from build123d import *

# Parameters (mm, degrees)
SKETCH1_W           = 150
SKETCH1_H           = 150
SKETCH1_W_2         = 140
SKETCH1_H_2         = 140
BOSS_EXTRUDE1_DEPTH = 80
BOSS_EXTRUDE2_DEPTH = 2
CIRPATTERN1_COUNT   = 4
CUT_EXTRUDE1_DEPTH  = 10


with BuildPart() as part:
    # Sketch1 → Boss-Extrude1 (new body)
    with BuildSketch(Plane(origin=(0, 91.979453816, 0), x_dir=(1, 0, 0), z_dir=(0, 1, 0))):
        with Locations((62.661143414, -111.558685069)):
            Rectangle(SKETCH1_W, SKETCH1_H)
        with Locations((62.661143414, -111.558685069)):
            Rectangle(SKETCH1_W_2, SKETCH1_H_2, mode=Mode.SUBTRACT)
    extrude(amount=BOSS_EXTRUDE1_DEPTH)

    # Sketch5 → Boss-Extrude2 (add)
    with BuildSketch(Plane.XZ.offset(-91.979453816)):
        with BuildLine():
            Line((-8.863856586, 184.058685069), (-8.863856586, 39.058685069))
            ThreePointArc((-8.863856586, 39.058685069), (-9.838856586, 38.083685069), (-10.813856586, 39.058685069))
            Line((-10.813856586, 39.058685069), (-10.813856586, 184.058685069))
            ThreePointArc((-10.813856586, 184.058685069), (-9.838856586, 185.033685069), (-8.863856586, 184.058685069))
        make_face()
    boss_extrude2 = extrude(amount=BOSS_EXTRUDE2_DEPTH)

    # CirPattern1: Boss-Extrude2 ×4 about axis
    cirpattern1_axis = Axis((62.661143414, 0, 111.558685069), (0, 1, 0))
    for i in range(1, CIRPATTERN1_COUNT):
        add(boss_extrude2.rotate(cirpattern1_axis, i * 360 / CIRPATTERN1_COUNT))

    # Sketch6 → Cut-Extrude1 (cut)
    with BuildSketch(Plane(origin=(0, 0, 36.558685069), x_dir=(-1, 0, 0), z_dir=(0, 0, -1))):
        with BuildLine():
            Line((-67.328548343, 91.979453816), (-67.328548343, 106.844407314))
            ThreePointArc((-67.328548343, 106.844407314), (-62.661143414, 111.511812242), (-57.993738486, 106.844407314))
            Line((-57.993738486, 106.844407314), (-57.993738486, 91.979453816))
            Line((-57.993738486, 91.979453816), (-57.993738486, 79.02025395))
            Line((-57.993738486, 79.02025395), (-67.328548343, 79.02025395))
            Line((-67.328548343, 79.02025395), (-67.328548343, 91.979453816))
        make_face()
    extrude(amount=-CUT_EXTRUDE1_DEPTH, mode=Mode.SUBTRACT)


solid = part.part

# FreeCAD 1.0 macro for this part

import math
import FreeCAD as App
import Part
import Sketcher

V = App.Vector


def add_polygon(sketch, points):
    """Adds a closed chain of lines whose ends are joined by coincident constraints."""
    first, n = sketch.GeometryCount, len(points)
    for a, b in zip(points, points[1:] + points[:1]):
        sketch.addGeometry(Part.LineSegment(App.Vector(*a, 0), App.Vector(*b, 0)), False)
    for i in range(n):
        sketch.addConstraint(Sketcher.Constraint("Coincident", first + i, 2, first + (i + 1) % n, 1))

doc = App.newDocument("Part")
body = doc.addObject("PartDesign::Body", "Body")

sketch1 = doc.addObject("Sketcher::SketchObject", "Sketch")
body.addObject(sketch1)
sketch1.AttachmentSupport = (doc.XZ_Plane, [""])
sketch1.MapMode = "FlatFace"
sketch1.AttachmentOffset = App.Placement(V(0, 0, -91.979454), App.Rotation())
add_polygon(sketch1, [(-12, 37), (-12, 187), (138, 187), (138, 37)])
add_polygon(sketch1, [(133, 182), (-7, 182), (-7, 42), (133, 42)])
sketch1.addConstraint([
    Sketcher.Constraint("Vertical", 0),
    Sketcher.Constraint("Horizontal", 1),
    Sketcher.Constraint("Vertical", 2),
    Sketcher.Constraint("Horizontal", 3),
    Sketcher.Constraint("Horizontal", 4),
    Sketcher.Constraint("Vertical", 5),
    Sketcher.Constraint("Horizontal", 6),
    Sketcher.Constraint("Vertical", 7),
    Sketcher.Constraint("Equal", 3, 0),
    Sketcher.Constraint("Equal", 6, 5),
    Sketcher.Constraint("DistanceX", 1, 1, 1, 2, 150.0),
    Sketcher.Constraint("DistanceX", 4, 2, 4, 1, 140.0),
    Sketcher.Constraint("DistanceX", 0, 2, 4, 2, 5.0),
    Sketcher.Constraint("DistanceY", 4, 2, 0, 2, 5.0),
    Sketcher.Constraint("DistanceX", 0, 2, -1, 1, 12.338857),
    Sketcher.Constraint("DistanceY", -1, 1, 0, 2, 186.558685),
])
pad1 = doc.addObject("PartDesign::Pad", "Pad")
body.addObject(pad1)
pad1.Profile = sketch1
pad1.Length = 80
pad1.Reversed = True

sketch2 = doc.addObject("Sketcher::SketchObject", "Sketch001")
body.addObject(sketch2)
sketch2.AttachmentSupport = (doc.XZ_Plane, [""])
sketch2.MapMode = "FlatFace"
sketch2.AttachmentOffset = App.Placement(V(0, 0, -91.979454), App.Rotation())
sketch2.addGeometry([
    Part.LineSegment(V(-8.9, 39.1, 0), V(-8.9, 184.1, 0)),
    Part.ArcOfCircle(Part.Circle(V(-9.8, 184.1, 0), V(0, 0, 1), 1), math.radians(0), math.radians(180)),
    Part.LineSegment(V(-10.8, 184.1, 0), V(-10.8, 39.1, 0)),
    Part.ArcOfCircle(Part.Circle(V(-9.8, 39.1, 0), V(0, 0, 1), 1), math.radians(180), math.radians(360)),
], False)
sketch2.addConstraint([
    Sketcher.Constraint("Tangent", 0, 2, 1, 1),
    Sketcher.Constraint("Tangent", 1, 2, 2, 1),
    Sketcher.Constraint("Tangent", 2, 2, 3, 1),
    Sketcher.Constraint("Tangent", 3, 2, 0, 1),
    Sketcher.Constraint("Vertical", 0),
    Sketcher.Constraint("Vertical", 2),
    Sketcher.Constraint("DistanceY", 0, 1, 0, 2, 145.0),
    Sketcher.Constraint("Radius", 1, 0.975),
    Sketcher.Constraint("DistanceX", 1, 3, -1, 1, 9.838857),
    Sketcher.Constraint("DistanceY", -1, 1, 1, 3, 184.058685),
])
pad2 = doc.addObject("PartDesign::Pad", "Pad001")
body.addObject(pad2)
pad2.Profile = sketch2
pad2.Length = 2
doc.recompute()

datumline = doc.addObject("PartDesign::Line", "DatumLine")
body.addObject(datumline)
datumline.Placement = App.Placement(V(62.661143, 0, 111.558685), App.Rotation(V(0, 0, 1), V(0, 1, 0)))
polarpattern = doc.addObject("PartDesign::PolarPattern", "PolarPattern")
body.addObject(polarpattern)
polarpattern.Originals = [pad2]
polarpattern.Axis = (datumline, [""])
polarpattern.Angle = 360
polarpattern.Occurrences = 4
body.Tip = polarpattern

sketch3 = doc.addObject("Sketcher::SketchObject", "Sketch002")
body.addObject(sketch3)
sketch3.AttachmentSupport = (doc.XY_Plane, [""])
sketch3.MapMode = "FlatFace"
sketch3.AttachmentOffset = App.Placement(V(0, 0, 36.558685), App.Rotation())
sketch3.addGeometry([
    Part.ArcOfCircle(Part.Circle(V(62.7, 106.8, 0), V(0, 0, 1), 4.7), math.radians(0), math.radians(180)),
    Part.LineSegment(V(67.3, 106.8, 0), V(67.3, 79, 0)),
    Part.LineSegment(V(67.3, 79, 0), V(58, 79, 0)),
    Part.LineSegment(V(58, 79, 0), V(58, 106.8, 0)),
], False)
sketch3.addConstraint([
    Sketcher.Constraint("Tangent", 0, 1, 1, 1),
    Sketcher.Constraint("Coincident", 1, 2, 2, 1),
    Sketcher.Constraint("Coincident", 2, 2, 3, 1),
    Sketcher.Constraint("Tangent", 3, 2, 0, 2),
    Sketcher.Constraint("Vertical", 1),
    Sketcher.Constraint("Horizontal", 2),
    Sketcher.Constraint("Vertical", 3),
    Sketcher.Constraint("Radius", 0, 4.667405),
    Sketcher.Constraint("DistanceY", 1, 2, 1, 1, 27.824153),
    Sketcher.Constraint("DistanceX", -1, 1, 0, 1, 67.328548),
    Sketcher.Constraint("DistanceY", -1, 1, 0, 3, 106.844407),
])
pocket1 = doc.addObject("PartDesign::Pocket", "Pocket")
body.addObject(pocket1)
pocket1.Profile = sketch3
pocket1.Length = 10
pocket1.Reversed = True

doc.recompute()
